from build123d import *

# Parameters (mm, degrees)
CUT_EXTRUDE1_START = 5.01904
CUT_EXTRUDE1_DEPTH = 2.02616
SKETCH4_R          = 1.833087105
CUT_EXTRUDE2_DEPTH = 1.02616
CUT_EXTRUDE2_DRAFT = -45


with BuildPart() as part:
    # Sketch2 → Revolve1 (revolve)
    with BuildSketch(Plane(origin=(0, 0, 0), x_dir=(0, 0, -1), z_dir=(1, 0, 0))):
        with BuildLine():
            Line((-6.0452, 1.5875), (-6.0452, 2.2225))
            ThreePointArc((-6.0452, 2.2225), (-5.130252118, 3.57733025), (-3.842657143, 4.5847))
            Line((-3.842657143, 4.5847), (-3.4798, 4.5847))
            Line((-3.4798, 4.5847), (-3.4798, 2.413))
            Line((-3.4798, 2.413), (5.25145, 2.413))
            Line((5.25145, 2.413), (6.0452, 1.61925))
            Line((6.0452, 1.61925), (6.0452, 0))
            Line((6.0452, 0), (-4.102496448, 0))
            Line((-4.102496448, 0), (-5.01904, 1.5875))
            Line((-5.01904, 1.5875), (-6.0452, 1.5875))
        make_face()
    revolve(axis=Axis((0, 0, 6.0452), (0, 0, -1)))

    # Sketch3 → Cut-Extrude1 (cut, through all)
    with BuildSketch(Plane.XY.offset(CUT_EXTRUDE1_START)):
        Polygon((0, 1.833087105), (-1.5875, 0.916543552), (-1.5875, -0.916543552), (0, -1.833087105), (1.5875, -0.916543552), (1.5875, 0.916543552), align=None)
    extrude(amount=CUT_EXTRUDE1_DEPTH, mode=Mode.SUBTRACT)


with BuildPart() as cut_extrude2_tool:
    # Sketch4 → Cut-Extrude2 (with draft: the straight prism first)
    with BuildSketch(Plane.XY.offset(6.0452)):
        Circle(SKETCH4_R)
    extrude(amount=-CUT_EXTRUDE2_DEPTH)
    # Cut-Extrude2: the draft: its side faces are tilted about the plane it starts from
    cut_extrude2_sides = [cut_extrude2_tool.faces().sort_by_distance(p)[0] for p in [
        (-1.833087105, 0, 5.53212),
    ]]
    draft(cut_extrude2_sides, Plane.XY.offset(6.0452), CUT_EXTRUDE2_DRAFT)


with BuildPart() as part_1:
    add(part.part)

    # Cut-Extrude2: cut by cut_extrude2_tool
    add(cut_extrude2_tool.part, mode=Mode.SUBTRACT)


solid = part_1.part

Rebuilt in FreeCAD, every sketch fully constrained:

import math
import FreeCAD as App
import Part
import Sketcher
Q = App.Units.Quantity


def faces_at(feature, points):
    """Names of the faces that lie closest to the given points."""
    faces = feature.Shape.Faces
    near = lambda p: min(range(len(faces)), key=lambda i: faces[i].distToShape(Part.Vertex(*p))[0])
    return sorted({f"Face{near(p) + 1}" for p in points})

doc = App.newDocument("Part")
body = doc.addObject("PartDesign::Body", "Body")

sketch1 = doc.addObject("Sketcher::SketchObject", "Sketch")
body.addObject(sketch1)
sketch1.AttachmentSupport = (doc.YZ_Plane, [""])
sketch1.MapMode = "FlatFace"
sketch1.addGeometry([
    Part.LineSegment(App.Vector(2.22, 6.05, 0), App.Vector(1.59, 6.05, 0)),
    Part.LineSegment(App.Vector(1.59, 6.05, 0), App.Vector(1.59, 5.02, 0)),
    Part.LineSegment(App.Vector(1.59, 5.02, 0), App.Vector(0, 4.1, 0)),
    Part.LineSegment(App.Vector(0, 4.1, 0), App.Vector(0, -6.05, 0)),
    Part.LineSegment(App.Vector(0, -6.05, 0), App.Vector(1.62, -6.05, 0)),
    Part.LineSegment(App.Vector(1.62, -6.05, 0), App.Vector(2.41, -5.25, 0)),
    Part.LineSegment(App.Vector(2.41, -5.25, 0), App.Vector(2.41, 3.48, 0)),
    Part.LineSegment(App.Vector(2.41, 3.48, 0), App.Vector(4.58, 3.48, 0)),
    Part.LineSegment(App.Vector(4.58, 3.48, 0), App.Vector(4.58, 3.84, 0)),
    Part.ArcOfCircle(Part.Circle(App.Vector(0, 1.29, 0), App.Vector(0, 0, 1), 5.25), math.radians(29), math.radians(65)),
], False)
sketch1.addConstraint([
    Sketcher.Constraint("Coincident", 0, 2, 1, 1),
    Sketcher.Constraint("Coincident", 1, 2, 2, 1),
    Sketcher.Constraint("Coincident", 2, 2, 3, 1),
    Sketcher.Constraint("Coincident", 3, 2, 4, 1),
    Sketcher.Constraint("Coincident", 4, 2, 5, 1),
    Sketcher.Constraint("Coincident", 5, 2, 6, 1),
    Sketcher.Constraint("Coincident", 6, 2, 7, 1),
    Sketcher.Constraint("Coincident", 7, 2, 8, 1),
    Sketcher.Constraint("Coincident", 8, 2, 9, 1),
    Sketcher.Constraint("Coincident", 9, 2, 0, 1),
    Sketcher.Constraint("Horizontal", 0),
    Sketcher.Constraint("Vertical", 1),
    Sketcher.Constraint("Vertical", 3),
    Sketcher.Constraint("Horizontal", 4),
    Sketcher.Constraint("Vertical", 6),
    Sketcher.Constraint("Horizontal", 7),
    Sketcher.Constraint("Vertical", 8),
    Sketcher.Constraint("PointOnObject", 9, 3, -2),
    Sketcher.Constraint("PointOnObject", 2, 2, -2),
    Sketcher.Constraint("Angle", 2, Q("-150 deg")),
    Sketcher.Constraint("Angle", 5, Q("45 deg")),
    Sketcher.Constraint("DistanceX", 0, 2, 0, 1, Q("0.025 in")),
    Sketcher.Constraint("DistanceY", 6, 1, 6, 2, Q("0.34375 in")),
    Sketcher.Constraint("DistanceX", 7, 1, 7, 2, Q("0.0855 in")),
    Sketcher.Constraint("DistanceY", 1, 2, 1, 1, Q("0.0404 in")),
    Sketcher.Constraint("DistanceX", -1, 1, 0, 2, Q("0.0625 in")),
    Sketcher.Constraint("DistanceY", -1, 1, 0, 2, Q("0.238 in")),
    Sketcher.Constraint("DistanceY", 3, 2, -1, 1, Q("0.238 in")),
    Sketcher.Constraint("DistanceX", -1, 1, 5, 2, Q("0.095 in")),
    Sketcher.Constraint("DistanceY", -1, 1, 6, 2, Q("0.137 in")),
    Sketcher.Constraint("Radius", 9, 5.245676),
])
revolution = doc.addObject("PartDesign::Revolution", "Revolution")
body.addObject(revolution)
revolution.Profile = sketch1
revolution.ReferenceAxis = (sketch1, ["V_Axis"])
revolution.Angle = 360

sketch2 = doc.addObject("Sketcher::SketchObject", "Sketch001")
body.addObject(sketch2)
sketch2.AttachmentSupport = (doc.XY_Plane, [""])
sketch2.MapMode = "FlatFace"
sketch2.AttachmentOffset = App.Placement(App.Vector(0, 0, 0.1976 * 25.4), App.Rotation())
sketch2.addGeometry([
    Part.LineSegment(App.Vector(0, 1.8, 0), App.Vector(-1.6, 0.9, 0)),
    Part.LineSegment(App.Vector(-1.6, 0.9, 0), App.Vector(-1.6, -0.9, 0)),
    Part.LineSegment(App.Vector(-1.6, -0.9, 0), App.Vector(0, -1.8, 0)),
    Part.LineSegment(App.Vector(0, -1.8, 0), App.Vector(1.6, -0.9, 0)),
    Part.LineSegment(App.Vector(1.6, -0.9, 0), App.Vector(1.6, 0.9, 0)),
    Part.LineSegment(App.Vector(1.6, 0.9, 0), App.Vector(0, 1.8, 0)),
], False)
sketch2.addConstraint([
    Sketcher.Constraint("Coincident", 0, 2, 1, 1),
    Sketcher.Constraint("Coincident", 1, 2, 2, 1),
    Sketcher.Constraint("Coincident", 2, 2, 3, 1),
    Sketcher.Constraint("Coincident", 3, 2, 4, 1),
    Sketcher.Constraint("Coincident", 4, 2, 5, 1),
    Sketcher.Constraint("Coincident", 5, 2, 0, 1),
    Sketcher.Constraint("Vertical", 1),
    Sketcher.Constraint("Vertical", 4),
    Sketcher.Constraint("Symmetric", 0, 2, 3, 2, -1, 1),
    Sketcher.Constraint("Symmetric", 2, 2, 5, 2, -1, 1),
    Sketcher.Constraint("PointOnObject", 2, 2, -2),
    Sketcher.Constraint("Parallel", 2, 5),
    Sketcher.Constraint("Horizontal", 1, 2, 3, 2),
    Sketcher.Constraint("Angle", 0, Q("-150 deg")),
    Sketcher.Constraint("DistanceX", 0, 2, -1, 1, Q("0.0625 in")),
    Sketcher.Constraint("DistanceY", 1, 2, 1, 1, 1.833087),
])
pocket1 = doc.addObject("PartDesign::Pocket", "Pocket")
body.addObject(pocket1)
pocket1.Profile = sketch2
pocket1.Type = "ThroughAll"
pocket1.Reversed = True
body2 = doc.addObject("PartDesign::Body", "Body001")

sketch3 = doc.addObject("Sketcher::SketchObject", "Sketch002")
body2.addObject(sketch3)
sketch3.AttachmentSupport = (doc.getObject("XY_Plane001"), [""])
sketch3.MapMode = "FlatFace"
sketch3.AttachmentOffset = App.Placement(App.Vector(0, 0, 0.238 * 25.4), App.Rotation())
sketch3.addGeometry(Part.Circle(App.Vector(0, 0, 0), App.Vector(0, 0, 1), 1.8), False)
sketch3.addConstraint([
    Sketcher.Constraint("Coincident", 0, 3, -1, 1),
    Sketcher.Constraint("Diameter", 0, 3.666174),
])
pad1 = doc.addObject("PartDesign::Pad", "Pad")
body2.addObject(pad1)
pad1.Profile = sketch3
pad1.Length = Q("0.0404 in")
pad1.Reversed = True
doc.recompute()

datumplane = doc.addObject("PartDesign::Plane", "DatumPlane")
body2.addObject(datumplane)
datumplane.AttachmentSupport = (doc.getObject("XY_Plane001"), [""])
datumplane.MapMode = "FlatFace"
datumplane.AttachmentOffset = App.Placement(App.Vector(0, 0, 0.238 * 25.4), App.Rotation())
draft = doc.addObject("PartDesign::Draft", "Draft")
body2.addObject(draft)
draft.Base = (pad1, faces_at(pad1, [(-1.833, 0, 5.532)]))
draft.NeutralPlane = (datumplane, [""])
draft.Angle = 45
draft.Reversed = True
doc.recompute()

boolean = doc.addObject("PartDesign::Boolean", "Boolean")
body.addObject(boolean)
boolean.Type = "Cut"
boolean.addObjects([body2])

doc.recompute()
